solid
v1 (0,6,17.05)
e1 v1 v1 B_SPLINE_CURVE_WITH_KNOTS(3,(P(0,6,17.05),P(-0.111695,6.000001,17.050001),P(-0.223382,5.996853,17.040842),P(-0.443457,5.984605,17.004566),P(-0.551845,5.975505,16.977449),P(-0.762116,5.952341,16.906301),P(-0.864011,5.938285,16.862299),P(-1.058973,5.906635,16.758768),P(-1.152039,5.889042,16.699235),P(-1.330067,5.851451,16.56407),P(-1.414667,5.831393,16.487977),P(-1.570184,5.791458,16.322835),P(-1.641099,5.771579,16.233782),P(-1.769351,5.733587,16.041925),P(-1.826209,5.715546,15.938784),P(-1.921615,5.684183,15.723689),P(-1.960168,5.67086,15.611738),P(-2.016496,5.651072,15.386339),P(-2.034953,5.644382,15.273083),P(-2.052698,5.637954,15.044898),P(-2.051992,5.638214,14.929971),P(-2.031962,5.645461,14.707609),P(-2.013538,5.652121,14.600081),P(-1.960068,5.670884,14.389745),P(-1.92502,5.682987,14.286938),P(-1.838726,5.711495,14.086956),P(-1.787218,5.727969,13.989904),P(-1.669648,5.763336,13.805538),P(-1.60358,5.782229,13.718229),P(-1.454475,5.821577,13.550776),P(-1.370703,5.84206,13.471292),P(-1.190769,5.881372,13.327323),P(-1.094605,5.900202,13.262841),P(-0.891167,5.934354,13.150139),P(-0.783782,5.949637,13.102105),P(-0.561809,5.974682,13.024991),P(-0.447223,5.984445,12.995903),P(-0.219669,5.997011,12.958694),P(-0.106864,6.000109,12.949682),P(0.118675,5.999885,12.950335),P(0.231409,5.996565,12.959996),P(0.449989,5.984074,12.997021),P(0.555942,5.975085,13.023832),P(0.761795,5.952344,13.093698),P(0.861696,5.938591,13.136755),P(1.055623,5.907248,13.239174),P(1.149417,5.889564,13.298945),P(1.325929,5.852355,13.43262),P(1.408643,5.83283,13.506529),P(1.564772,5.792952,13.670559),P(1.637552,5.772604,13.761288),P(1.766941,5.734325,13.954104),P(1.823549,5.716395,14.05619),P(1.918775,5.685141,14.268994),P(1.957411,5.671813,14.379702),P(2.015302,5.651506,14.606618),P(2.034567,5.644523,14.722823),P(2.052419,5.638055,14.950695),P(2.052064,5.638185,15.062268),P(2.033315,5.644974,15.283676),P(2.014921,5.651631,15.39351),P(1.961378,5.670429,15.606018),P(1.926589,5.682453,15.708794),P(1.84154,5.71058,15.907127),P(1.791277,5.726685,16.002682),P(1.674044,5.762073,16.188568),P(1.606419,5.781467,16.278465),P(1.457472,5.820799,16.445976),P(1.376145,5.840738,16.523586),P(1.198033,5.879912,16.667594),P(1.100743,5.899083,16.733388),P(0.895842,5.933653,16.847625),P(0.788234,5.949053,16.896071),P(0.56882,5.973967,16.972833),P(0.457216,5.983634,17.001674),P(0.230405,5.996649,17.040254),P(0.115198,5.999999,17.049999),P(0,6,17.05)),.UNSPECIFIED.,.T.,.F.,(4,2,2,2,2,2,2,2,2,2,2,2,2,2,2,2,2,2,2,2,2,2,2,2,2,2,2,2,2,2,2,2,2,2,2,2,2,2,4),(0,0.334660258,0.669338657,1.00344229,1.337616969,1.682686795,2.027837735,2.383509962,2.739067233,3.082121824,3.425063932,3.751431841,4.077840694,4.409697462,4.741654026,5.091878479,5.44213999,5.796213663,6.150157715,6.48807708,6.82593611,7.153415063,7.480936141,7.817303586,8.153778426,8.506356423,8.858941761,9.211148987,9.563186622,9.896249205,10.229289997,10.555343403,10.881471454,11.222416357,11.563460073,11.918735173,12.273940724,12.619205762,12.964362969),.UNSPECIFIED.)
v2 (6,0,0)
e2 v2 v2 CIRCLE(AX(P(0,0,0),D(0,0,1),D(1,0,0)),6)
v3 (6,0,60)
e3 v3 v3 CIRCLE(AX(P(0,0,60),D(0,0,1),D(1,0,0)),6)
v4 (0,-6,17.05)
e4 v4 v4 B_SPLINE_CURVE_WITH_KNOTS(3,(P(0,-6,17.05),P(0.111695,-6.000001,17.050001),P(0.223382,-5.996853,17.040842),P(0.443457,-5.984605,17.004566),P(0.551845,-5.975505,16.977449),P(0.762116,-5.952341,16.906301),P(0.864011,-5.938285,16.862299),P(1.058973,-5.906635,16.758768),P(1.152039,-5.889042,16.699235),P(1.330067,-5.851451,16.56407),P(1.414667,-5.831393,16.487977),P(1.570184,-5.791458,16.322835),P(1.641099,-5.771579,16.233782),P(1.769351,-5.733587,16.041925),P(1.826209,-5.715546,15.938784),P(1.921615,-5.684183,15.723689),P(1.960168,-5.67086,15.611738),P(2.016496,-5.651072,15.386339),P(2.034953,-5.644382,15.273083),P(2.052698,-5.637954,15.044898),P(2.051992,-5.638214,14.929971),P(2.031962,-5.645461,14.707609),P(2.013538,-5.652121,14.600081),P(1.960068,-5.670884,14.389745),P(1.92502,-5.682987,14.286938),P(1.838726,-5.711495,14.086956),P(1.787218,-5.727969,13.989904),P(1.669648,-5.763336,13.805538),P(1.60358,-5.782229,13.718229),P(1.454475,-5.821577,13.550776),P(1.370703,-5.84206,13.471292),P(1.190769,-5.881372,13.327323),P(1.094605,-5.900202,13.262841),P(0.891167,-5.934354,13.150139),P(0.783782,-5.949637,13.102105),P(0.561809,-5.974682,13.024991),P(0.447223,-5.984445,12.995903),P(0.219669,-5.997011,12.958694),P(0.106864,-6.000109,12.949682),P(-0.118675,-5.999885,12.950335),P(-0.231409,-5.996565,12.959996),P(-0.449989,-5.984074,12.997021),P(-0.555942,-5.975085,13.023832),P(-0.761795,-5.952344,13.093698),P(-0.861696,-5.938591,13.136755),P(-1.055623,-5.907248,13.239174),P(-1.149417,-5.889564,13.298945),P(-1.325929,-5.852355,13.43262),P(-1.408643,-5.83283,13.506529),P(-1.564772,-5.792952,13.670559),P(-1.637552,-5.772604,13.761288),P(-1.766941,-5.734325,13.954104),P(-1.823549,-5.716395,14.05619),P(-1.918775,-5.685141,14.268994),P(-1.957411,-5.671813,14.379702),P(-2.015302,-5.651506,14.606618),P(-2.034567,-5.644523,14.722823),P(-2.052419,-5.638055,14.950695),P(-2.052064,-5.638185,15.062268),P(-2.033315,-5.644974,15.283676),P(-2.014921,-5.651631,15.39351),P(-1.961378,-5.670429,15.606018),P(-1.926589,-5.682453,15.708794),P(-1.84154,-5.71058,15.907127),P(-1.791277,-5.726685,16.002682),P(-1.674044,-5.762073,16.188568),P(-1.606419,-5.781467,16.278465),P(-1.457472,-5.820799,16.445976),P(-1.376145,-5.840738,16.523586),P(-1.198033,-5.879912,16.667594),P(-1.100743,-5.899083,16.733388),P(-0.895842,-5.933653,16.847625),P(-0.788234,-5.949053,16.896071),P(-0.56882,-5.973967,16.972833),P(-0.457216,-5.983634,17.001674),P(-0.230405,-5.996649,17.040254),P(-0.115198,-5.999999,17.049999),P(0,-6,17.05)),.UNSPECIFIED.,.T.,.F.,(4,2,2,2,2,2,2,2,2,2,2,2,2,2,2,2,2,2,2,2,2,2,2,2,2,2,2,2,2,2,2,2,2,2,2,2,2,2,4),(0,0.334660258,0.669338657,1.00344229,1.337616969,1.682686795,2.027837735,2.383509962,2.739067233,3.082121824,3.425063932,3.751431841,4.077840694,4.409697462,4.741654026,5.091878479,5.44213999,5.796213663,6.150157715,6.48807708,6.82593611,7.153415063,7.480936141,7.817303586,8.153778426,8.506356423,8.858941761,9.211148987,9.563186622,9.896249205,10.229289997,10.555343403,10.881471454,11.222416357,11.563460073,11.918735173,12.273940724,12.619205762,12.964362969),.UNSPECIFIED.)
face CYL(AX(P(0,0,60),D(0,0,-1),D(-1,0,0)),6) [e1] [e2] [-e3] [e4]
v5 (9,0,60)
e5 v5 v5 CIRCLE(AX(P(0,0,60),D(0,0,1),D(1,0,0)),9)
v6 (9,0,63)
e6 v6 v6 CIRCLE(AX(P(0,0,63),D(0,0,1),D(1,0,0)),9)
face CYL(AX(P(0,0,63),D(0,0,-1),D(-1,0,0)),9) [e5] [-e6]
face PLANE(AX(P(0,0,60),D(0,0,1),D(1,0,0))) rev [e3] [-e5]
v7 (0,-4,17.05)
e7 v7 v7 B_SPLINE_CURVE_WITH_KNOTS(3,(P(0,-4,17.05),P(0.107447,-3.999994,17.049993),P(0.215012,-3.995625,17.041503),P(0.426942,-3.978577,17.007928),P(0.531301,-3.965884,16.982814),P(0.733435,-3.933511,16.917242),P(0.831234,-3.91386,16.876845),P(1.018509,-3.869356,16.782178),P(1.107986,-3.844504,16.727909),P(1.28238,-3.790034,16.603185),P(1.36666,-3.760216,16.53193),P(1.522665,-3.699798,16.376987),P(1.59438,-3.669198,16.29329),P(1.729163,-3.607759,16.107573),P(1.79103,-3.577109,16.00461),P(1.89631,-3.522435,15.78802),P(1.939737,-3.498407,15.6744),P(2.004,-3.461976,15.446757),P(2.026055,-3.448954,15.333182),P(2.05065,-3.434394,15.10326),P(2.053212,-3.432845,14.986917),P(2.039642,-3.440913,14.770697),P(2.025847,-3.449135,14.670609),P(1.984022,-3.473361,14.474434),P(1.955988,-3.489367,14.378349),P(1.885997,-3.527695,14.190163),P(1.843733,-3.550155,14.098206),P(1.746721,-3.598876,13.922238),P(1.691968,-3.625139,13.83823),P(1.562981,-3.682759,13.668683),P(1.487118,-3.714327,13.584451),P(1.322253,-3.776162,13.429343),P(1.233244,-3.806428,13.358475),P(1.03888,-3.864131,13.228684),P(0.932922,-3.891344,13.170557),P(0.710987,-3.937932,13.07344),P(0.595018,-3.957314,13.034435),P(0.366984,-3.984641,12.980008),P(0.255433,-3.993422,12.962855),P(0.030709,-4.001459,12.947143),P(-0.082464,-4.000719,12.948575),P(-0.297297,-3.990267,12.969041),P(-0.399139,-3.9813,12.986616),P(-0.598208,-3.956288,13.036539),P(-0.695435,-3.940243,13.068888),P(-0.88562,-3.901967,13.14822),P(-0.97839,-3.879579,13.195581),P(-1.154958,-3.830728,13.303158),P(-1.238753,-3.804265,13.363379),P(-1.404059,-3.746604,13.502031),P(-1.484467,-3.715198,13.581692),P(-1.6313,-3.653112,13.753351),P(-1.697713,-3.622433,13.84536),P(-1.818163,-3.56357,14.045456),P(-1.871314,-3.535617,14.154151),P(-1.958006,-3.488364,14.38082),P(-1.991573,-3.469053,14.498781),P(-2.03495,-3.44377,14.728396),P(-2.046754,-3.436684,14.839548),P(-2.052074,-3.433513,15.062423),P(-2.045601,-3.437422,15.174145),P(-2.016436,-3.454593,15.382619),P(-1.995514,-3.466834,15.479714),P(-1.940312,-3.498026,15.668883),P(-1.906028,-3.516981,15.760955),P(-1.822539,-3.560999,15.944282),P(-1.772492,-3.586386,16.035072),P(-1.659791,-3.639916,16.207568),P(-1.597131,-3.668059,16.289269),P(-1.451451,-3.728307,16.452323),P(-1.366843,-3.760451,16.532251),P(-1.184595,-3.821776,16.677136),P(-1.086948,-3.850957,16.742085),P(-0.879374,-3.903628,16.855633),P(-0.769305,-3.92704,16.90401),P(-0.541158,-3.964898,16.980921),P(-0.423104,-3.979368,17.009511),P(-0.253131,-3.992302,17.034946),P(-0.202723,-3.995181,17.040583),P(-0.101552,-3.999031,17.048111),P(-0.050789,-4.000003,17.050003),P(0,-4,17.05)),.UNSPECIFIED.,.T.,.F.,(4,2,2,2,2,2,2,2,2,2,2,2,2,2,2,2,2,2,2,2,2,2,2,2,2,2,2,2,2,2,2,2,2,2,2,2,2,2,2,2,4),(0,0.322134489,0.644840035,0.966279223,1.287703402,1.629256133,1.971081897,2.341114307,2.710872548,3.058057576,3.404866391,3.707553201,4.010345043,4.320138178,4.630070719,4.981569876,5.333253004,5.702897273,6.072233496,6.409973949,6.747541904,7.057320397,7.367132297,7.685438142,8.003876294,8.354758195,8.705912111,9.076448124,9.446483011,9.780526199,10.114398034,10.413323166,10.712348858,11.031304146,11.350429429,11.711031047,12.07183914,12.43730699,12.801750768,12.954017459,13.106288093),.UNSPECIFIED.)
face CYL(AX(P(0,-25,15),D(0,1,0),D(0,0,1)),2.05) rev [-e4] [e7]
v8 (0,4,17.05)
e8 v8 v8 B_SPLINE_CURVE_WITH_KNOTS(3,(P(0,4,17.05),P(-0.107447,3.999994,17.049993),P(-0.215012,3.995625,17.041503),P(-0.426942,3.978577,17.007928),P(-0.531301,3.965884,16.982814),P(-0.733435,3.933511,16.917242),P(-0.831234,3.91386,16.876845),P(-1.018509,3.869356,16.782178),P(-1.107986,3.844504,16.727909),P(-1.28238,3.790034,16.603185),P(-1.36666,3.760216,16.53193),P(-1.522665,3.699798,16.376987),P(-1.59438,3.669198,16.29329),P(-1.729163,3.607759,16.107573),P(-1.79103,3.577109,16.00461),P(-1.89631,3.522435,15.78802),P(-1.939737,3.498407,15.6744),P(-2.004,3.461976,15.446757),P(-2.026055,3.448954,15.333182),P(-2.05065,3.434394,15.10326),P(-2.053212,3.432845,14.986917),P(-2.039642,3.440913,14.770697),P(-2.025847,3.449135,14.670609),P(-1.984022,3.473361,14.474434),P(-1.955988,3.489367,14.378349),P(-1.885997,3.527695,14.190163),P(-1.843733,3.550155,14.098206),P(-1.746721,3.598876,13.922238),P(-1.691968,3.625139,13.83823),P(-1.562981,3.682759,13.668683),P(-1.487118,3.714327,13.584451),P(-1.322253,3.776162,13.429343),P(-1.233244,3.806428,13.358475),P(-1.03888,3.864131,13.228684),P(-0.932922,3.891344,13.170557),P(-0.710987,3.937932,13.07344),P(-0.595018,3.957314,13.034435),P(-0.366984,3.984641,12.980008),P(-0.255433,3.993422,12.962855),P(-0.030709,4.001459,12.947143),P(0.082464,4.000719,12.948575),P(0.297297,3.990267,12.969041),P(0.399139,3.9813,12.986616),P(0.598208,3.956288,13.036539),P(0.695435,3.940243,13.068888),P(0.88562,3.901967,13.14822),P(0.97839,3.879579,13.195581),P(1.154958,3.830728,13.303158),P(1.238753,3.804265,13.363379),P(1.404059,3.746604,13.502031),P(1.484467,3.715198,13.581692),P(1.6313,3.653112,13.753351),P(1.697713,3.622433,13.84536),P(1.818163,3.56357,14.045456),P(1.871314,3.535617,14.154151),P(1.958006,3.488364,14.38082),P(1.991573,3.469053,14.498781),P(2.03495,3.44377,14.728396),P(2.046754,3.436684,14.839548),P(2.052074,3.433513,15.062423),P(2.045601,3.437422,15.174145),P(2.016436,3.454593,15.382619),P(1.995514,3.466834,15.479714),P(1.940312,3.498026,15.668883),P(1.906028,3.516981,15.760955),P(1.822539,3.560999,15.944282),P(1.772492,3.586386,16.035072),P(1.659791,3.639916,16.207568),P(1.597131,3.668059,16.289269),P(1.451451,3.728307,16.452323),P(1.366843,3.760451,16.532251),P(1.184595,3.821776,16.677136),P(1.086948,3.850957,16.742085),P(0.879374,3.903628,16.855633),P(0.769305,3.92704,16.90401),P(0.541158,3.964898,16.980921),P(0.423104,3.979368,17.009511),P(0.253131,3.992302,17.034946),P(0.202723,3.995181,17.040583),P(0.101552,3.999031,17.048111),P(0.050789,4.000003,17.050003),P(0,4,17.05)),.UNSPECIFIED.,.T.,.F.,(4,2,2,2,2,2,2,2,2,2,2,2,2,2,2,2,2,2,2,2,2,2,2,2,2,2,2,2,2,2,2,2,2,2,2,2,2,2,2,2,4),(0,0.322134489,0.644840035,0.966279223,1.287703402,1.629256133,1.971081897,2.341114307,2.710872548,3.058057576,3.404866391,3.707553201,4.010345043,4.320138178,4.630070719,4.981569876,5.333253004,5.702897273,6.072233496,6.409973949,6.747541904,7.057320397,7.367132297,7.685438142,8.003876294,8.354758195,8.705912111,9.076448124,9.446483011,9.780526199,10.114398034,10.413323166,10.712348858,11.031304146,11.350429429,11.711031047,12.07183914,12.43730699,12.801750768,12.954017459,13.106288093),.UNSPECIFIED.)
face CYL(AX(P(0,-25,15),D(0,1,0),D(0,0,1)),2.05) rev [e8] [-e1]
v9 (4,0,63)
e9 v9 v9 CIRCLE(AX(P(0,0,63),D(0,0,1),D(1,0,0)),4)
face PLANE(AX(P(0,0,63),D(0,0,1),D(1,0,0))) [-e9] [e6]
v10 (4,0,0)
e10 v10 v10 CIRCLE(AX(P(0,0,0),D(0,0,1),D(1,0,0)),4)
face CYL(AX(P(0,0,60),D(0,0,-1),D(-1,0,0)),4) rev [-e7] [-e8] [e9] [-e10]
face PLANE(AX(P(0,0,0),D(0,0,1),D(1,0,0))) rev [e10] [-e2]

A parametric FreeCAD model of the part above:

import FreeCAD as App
import Part
import Sketcher

doc = App.newDocument("Part")
body = doc.addObject("PartDesign::Body", "Body")

sketch1 = body.newObject("Sketcher::SketchObject", "Sketch")
sketch1.AttachmentSupport = (doc.getObject("XY_Plane"), [""])
sketch1.MapMode = "FlatFace"
sketch1.addGeometry([
    Part.Circle(App.Vector(0, 0, 0), App.Vector(0, 0, 1), 6),
    Part.Circle(App.Vector(0, 0, 0), App.Vector(0, 0, 1), 4),
], False)
sketch1.addConstraint([
    Sketcher.Constraint("Coincident", 0, 3, -1, 1),
    Sketcher.Constraint("Coincident", 1, 3, -1, 1),
    Sketcher.Constraint("Diameter", 0, 12.0),
    Sketcher.Constraint("Diameter", 1, 8.0),
])
pad1 = body.newObject("PartDesign::Pad", "Pad")
pad1.Profile = sketch1
pad1.Length = 60

sketch2 = body.newObject("Sketcher::SketchObject", "Sketch001")
sketch2.AttachmentSupport = (doc.getObject("XY_Plane"), [""])
sketch2.MapMode = "FlatFace"
sketch2.AttachmentOffset = App.Placement(App.Vector(0, 0, 60), App.Rotation())
sketch2.addGeometry([
    Part.Circle(App.Vector(0, 0, 0), App.Vector(0, 0, 1), 9),
    Part.Circle(App.Vector(0, 0, 0), App.Vector(0, 0, 1), 4),
], False)
sketch2.addConstraint([
    Sketcher.Constraint("Coincident", 0, 3, -1, 1),
    Sketcher.Constraint("Coincident", 1, 3, -1, 1),
    Sketcher.Constraint("Diameter", 0, 18.0),
    Sketcher.Constraint("Diameter", 1, 8.0),
])
pad2 = body.newObject("PartDesign::Pad", "Pad001")
pad2.Profile = sketch2
pad2.Length = 3

sketch3 = body.newObject("Sketcher::SketchObject", "Sketch002")
sketch3.AttachmentSupport = (doc.getObject("XZ_Plane"), [""])
sketch3.MapMode = "FlatFace"
sketch3.addGeometry(Part.Circle(App.Vector(0, 15, 0), App.Vector(0, 0, 1), 2), False)
sketch3.addConstraint([
    Sketcher.Constraint("PointOnObject", 0, 3, -2),
    Sketcher.Constraint("Diameter", 0, 4.1),
    Sketcher.Constraint("DistanceY", -1, 1, 0, 3, 15.0),
])
pocket1 = body.newObject("PartDesign::Pocket", "Pocket")
pocket1.Profile = sketch3
pocket1.Length = 50
pocket1.Midplane = True

doc.recompute()
